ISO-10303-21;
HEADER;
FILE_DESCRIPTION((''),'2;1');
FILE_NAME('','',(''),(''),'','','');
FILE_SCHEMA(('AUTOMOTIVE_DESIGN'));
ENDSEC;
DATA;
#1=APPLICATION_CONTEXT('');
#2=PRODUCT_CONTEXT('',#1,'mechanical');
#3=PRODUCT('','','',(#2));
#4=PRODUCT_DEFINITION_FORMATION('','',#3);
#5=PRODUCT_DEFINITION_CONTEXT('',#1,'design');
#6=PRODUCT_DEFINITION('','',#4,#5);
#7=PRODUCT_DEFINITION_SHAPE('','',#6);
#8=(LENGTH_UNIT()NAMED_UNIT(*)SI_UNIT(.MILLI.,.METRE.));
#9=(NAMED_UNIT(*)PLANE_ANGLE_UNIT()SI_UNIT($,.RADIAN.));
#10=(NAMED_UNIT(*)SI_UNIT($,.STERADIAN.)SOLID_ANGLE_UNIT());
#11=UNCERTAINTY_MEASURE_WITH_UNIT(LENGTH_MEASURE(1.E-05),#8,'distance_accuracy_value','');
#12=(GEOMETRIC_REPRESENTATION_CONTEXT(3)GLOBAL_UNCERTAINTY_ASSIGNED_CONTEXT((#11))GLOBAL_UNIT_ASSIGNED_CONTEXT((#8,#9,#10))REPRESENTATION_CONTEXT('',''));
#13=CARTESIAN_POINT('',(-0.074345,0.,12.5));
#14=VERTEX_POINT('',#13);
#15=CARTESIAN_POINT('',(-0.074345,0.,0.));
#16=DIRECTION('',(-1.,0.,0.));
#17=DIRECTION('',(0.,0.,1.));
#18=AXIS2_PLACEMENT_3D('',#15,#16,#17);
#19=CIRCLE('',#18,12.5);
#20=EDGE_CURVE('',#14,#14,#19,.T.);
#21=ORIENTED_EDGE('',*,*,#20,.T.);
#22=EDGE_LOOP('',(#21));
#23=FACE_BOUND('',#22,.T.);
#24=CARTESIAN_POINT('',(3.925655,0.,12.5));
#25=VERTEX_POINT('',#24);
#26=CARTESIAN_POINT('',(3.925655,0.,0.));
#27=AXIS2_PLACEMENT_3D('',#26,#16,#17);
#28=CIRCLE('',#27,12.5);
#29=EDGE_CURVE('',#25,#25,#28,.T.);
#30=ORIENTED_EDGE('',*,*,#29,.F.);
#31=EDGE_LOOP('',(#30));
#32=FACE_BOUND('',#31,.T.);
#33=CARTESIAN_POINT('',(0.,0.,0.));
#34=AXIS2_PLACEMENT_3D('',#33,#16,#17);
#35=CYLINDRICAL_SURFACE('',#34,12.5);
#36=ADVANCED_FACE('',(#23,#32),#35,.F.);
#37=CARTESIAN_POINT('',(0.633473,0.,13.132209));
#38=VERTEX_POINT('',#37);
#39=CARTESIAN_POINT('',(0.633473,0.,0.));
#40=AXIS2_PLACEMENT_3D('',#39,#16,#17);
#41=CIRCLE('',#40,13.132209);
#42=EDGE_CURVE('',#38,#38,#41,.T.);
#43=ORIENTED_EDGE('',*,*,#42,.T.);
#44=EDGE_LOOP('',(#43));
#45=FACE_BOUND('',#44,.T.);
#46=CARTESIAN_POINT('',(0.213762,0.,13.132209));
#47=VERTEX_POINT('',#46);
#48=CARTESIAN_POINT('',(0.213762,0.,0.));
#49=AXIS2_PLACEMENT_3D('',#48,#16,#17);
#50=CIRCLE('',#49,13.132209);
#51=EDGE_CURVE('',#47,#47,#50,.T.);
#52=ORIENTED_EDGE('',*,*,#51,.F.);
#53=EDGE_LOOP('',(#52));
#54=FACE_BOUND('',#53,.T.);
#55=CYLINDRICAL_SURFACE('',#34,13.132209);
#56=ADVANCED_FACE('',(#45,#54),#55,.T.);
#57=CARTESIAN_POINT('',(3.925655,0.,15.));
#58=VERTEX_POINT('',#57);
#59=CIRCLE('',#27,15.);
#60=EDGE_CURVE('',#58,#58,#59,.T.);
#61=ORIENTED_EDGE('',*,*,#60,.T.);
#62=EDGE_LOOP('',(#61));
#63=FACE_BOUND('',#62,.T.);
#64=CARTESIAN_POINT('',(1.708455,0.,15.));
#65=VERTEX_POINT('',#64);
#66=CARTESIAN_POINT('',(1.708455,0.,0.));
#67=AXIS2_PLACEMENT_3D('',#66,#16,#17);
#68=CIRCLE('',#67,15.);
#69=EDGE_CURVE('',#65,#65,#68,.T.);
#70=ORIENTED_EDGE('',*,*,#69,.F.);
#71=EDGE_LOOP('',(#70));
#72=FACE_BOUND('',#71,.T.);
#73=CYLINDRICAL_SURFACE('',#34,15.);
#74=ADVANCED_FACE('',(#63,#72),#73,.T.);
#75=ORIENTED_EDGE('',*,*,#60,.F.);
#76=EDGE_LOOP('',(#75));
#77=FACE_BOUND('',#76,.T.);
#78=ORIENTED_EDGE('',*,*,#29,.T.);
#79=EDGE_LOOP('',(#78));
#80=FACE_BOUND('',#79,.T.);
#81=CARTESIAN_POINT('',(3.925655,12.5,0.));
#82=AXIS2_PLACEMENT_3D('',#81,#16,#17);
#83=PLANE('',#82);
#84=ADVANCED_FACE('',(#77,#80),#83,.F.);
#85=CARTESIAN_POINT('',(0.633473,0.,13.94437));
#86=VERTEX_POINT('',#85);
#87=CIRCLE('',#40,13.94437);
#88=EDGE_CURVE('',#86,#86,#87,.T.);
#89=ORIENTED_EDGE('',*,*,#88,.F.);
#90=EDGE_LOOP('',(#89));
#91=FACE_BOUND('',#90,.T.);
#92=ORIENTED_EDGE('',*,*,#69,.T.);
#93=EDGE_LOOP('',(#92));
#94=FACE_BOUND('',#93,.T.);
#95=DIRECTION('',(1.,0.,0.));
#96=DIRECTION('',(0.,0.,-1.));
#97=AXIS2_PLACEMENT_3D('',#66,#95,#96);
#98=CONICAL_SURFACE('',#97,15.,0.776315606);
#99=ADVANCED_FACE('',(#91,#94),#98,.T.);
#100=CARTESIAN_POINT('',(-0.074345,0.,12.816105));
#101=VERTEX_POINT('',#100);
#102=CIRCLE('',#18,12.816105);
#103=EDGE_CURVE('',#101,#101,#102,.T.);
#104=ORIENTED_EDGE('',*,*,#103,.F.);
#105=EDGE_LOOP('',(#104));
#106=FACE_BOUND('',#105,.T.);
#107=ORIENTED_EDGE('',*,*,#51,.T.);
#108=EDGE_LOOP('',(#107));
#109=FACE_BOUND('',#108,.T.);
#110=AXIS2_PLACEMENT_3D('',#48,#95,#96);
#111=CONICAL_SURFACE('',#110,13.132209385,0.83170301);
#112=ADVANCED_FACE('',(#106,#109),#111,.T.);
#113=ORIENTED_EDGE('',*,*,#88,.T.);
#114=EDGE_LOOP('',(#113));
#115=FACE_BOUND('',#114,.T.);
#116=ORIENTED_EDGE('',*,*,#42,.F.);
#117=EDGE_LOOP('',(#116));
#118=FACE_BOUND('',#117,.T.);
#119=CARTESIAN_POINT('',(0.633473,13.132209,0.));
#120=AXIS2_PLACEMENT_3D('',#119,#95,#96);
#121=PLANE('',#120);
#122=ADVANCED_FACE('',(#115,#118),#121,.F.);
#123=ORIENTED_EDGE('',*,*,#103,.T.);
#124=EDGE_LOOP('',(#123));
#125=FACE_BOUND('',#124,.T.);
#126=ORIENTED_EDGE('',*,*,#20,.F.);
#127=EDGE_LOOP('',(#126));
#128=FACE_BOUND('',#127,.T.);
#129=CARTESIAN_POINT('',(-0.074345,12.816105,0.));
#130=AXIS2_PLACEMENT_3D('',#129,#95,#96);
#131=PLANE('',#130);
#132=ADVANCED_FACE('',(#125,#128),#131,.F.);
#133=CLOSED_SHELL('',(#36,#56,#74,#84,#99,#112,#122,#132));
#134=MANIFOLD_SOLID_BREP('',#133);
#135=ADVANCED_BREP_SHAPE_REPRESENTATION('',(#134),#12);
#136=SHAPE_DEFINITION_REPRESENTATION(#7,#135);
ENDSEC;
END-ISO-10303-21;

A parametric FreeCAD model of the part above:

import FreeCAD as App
import Part
import Sketcher


def add_polygon(sketch, points):
    """Adds a closed chain of lines whose ends are joined by coincident constraints."""
    first, n = sketch.GeometryCount, len(points)
    for a, b in zip(points, points[1:] + points[:1]):
        sketch.addGeometry(Part.LineSegment(App.Vector(*a, 0), App.Vector(*b, 0)), False)
    for i in range(n):
        sketch.addConstraint(Sketcher.Constraint("Coincident", first + i, 2, first + (i + 1) % n, 1))

doc = App.newDocument("Part")
body = doc.addObject("PartDesign::Body", "Body")

# Sketch on XY plane
sketch1 = doc.addObject("Sketcher::SketchObject", "Sketch")
body.addObject(sketch1)
sketch1.AttachmentSupport = (doc.XY_Plane, [""])
sketch1.MapMode = "FlatFace"
add_polygon(sketch1, [(-0.07, 12.5), (3.93, 12.5), (3.93, 15), (1.71, 15), (0.63, 13.94), (0.63, 13.13), (0.21, 13.13), (-0.07, 12.82)])  # lines 0-7
sketch1.addConstraint(Sketcher.Constraint("Horizontal", 0))
sketch1.addConstraint(Sketcher.Constraint("Vertical", 1))
sketch1.addConstraint(Sketcher.Constraint("Horizontal", 2))
sketch1.addConstraint(Sketcher.Constraint("Vertical", 4))
sketch1.addConstraint(Sketcher.Constraint("Horizontal", 5))
sketch1.addConstraint(Sketcher.Constraint("Vertical", 7))
sketch1.addConstraint(Sketcher.Constraint("DistanceX", 0, 1, 0, 2, 4.0))
sketch1.addConstraint(Sketcher.Constraint("DistanceY", 1, 1, 1, 2, 2.5))
sketch1.addConstraint(Sketcher.Constraint("DistanceY", -1, 1, 1, 2, 15.0))
sketch1.addConstraint(Sketcher.Constraint("DistanceX", 2, 2, 2, 1, 2.217199))
sketch1.addConstraint(Sketcher.Constraint("Distance", 6, 0.4277))
sketch1.addConstraint(Sketcher.Constraint("DistanceX", 5, 2, 5, 1, 0.419712))
sketch1.addConstraint(Sketcher.Constraint("DistanceY", 4, 2, 4, 1, 0.81216))
sketch1.addConstraint(Sketcher.Constraint("DistanceY", 7, 2, 7, 1, 0.316105))
sketch1.addConstraint(Sketcher.Constraint("DistanceY", -1, 1, 3, 2, 13.94437))
sketch1.addConstraint(Sketcher.Constraint("DistanceX", -1, 1, 5, 2, 0.213762))
revolution = doc.addObject("PartDesign::Revolution", "Revolution")
body.addObject(revolution)
revolution.Profile = sketch1
revolution.ReferenceAxis = (sketch1, ["H_Axis"])
revolution.Angle = 360

doc.recompute()
